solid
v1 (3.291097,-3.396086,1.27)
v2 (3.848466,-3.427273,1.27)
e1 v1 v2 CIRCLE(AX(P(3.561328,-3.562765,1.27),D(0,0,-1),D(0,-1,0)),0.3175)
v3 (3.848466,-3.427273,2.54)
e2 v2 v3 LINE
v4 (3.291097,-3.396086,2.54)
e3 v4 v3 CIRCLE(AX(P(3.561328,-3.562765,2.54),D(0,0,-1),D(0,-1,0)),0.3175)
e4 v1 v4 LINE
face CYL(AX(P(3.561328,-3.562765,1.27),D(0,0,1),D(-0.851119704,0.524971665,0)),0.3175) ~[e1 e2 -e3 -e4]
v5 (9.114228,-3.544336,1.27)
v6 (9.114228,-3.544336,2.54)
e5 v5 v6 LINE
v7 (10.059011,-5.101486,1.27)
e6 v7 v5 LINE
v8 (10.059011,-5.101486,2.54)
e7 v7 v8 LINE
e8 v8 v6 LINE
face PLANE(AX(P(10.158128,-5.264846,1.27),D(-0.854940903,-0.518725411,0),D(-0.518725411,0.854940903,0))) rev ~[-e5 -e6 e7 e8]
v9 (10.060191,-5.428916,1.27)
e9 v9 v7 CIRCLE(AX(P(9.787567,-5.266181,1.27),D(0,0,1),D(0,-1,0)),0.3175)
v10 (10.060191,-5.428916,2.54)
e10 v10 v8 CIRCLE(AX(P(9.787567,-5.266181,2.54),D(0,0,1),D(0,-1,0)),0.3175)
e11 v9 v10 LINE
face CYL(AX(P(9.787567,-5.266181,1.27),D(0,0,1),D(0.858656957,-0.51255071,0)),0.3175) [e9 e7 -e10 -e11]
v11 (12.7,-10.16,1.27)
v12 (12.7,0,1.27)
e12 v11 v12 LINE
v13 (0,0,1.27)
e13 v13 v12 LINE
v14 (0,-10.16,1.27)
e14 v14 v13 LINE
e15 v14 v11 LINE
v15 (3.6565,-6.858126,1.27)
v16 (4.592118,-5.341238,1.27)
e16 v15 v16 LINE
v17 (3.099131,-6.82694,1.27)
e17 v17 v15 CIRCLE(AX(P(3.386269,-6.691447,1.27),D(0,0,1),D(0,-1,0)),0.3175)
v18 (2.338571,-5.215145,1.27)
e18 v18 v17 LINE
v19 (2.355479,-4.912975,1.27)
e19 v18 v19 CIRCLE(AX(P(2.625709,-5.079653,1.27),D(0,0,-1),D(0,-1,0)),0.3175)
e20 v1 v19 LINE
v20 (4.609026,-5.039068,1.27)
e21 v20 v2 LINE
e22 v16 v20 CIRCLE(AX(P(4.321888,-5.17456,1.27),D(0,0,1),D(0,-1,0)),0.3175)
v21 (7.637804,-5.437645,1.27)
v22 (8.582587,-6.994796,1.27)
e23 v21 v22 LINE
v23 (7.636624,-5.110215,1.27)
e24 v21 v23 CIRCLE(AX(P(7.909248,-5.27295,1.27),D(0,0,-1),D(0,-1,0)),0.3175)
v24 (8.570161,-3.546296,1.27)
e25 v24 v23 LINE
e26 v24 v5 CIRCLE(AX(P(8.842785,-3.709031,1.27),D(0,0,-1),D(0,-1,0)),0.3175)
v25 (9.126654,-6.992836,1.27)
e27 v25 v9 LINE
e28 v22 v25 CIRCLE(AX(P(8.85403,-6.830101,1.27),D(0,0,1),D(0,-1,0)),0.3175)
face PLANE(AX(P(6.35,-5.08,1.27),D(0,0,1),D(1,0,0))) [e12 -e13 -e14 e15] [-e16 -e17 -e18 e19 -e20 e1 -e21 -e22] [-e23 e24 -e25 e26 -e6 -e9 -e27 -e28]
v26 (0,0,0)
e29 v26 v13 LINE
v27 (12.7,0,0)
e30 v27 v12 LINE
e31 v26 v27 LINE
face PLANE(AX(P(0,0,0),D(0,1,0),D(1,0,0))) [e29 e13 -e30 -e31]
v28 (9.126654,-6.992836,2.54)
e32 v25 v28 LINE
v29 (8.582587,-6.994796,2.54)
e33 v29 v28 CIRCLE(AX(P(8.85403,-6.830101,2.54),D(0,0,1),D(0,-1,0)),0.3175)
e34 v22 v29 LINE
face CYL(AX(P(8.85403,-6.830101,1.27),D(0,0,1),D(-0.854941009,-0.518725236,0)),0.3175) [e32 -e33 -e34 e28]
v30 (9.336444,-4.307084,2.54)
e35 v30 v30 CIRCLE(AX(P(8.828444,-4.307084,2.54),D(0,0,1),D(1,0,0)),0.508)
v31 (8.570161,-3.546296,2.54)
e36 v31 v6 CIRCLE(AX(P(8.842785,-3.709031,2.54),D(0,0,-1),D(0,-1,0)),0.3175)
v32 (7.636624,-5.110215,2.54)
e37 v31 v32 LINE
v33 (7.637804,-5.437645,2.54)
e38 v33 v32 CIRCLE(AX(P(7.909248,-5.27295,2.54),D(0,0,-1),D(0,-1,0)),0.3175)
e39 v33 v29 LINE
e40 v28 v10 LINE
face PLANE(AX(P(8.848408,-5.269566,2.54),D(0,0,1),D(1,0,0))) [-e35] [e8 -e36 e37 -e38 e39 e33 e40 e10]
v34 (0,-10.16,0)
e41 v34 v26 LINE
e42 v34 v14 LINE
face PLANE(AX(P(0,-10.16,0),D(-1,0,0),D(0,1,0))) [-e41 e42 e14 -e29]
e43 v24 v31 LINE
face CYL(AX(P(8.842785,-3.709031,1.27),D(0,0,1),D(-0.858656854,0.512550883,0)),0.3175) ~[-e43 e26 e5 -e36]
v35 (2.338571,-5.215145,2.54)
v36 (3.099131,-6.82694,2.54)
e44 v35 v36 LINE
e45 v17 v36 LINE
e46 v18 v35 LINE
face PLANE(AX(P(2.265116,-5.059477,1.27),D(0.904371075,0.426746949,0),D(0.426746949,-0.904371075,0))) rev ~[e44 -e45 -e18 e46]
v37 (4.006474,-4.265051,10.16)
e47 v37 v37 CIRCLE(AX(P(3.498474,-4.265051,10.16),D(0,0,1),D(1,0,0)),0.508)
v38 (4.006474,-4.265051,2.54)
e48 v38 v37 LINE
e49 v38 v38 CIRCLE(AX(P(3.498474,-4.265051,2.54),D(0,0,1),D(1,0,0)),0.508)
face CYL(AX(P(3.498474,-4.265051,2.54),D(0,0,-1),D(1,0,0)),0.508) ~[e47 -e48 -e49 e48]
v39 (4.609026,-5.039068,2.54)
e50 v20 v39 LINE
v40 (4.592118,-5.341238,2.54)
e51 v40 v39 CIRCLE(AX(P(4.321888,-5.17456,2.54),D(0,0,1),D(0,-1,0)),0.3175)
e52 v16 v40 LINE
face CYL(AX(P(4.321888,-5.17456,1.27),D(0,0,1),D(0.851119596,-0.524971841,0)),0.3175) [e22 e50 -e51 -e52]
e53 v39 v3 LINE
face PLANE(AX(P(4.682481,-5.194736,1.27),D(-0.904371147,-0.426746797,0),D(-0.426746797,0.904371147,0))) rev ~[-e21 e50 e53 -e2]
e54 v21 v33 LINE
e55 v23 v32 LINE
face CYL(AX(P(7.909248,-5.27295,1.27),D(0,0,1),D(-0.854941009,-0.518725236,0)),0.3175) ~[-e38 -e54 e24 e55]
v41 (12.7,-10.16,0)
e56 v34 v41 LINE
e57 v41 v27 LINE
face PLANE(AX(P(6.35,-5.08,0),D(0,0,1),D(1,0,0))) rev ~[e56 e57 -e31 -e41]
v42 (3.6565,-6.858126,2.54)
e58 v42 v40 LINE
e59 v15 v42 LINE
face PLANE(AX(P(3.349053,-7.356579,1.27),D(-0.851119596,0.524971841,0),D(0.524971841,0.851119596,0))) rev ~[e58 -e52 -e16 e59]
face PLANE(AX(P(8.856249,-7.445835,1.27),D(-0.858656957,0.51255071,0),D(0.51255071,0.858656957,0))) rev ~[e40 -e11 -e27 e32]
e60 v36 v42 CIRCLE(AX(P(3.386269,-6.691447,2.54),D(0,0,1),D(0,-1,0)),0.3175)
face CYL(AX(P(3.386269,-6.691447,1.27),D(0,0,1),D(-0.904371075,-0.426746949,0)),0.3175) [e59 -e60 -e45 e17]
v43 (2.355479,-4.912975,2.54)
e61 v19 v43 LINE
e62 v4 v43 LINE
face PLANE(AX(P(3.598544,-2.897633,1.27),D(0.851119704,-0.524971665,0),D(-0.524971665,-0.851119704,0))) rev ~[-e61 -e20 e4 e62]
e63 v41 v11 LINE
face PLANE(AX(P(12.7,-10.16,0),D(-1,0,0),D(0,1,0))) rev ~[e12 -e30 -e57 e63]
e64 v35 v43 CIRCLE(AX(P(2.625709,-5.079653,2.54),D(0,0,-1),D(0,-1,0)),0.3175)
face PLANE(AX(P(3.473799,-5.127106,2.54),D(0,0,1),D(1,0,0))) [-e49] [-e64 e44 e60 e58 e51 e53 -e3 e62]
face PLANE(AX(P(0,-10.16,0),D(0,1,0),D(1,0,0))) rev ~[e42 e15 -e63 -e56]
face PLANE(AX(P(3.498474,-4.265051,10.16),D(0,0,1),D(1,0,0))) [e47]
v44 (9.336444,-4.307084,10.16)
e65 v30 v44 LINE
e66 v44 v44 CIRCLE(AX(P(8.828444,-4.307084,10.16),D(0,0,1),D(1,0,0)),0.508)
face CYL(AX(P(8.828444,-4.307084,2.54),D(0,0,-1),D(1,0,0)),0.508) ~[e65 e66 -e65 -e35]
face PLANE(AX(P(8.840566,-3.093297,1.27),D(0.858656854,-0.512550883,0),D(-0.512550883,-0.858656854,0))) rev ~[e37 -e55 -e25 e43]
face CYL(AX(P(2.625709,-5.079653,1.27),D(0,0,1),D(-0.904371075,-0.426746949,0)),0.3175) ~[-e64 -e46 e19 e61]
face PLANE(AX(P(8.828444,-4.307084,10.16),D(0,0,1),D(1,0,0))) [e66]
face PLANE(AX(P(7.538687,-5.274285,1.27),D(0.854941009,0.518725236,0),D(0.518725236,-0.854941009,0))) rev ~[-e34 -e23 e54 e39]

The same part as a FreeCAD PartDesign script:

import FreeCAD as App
import Part
import Sketcher
from FreeCAD import Vector
Q = App.Units.Quantity


def edges_at(feature, points):
    """Names of the edges that pass closest to the given points."""
    edges = feature.Shape.Edges
    near = lambda p: min(range(len(edges)), key=lambda i: edges[i].distToShape(Part.Vertex(*p))[0])
    return sorted({f"Edge{near(p) + 1}" for p in points})


def add_polygon(sketch, points):
    """Adds a closed chain of lines whose ends are joined by coincident constraints."""
    first, n = sketch.GeometryCount, len(points)
    for a, b in zip(points, points[1:] + points[:1]):
        sketch.addGeometry(Part.LineSegment(App.Vector(*a, 0), App.Vector(*b, 0)), False)
    for i in range(n):
        sketch.addConstraint(Sketcher.Constraint("Coincident", first + i, 2, first + (i + 1) % n, 1))

doc = App.newDocument("Part")
body = doc.addObject("PartDesign::Body", "Body")

sketch1 = body.newObject("Sketcher::SketchObject", "Sketch")
sketch1.AttachmentSupport = (doc.getObject("XY_Plane"), [""])
sketch1.MapMode = "FlatFace"
add_polygon(sketch1, [(0, 0), (0, -10.16), (12.7, -10.16), (12.7, 0)])
sketch1.addConstraint([
    Sketcher.Constraint("Vertical", 0),
    Sketcher.Constraint("Horizontal", 1),
    Sketcher.Constraint("Vertical", 2),
    Sketcher.Constraint("Horizontal", 3),
    Sketcher.Constraint("Coincident", 3, 2, -1, 1),
    Sketcher.Constraint("DistanceX", 1, 1, 1, 2, Q("0.5 in")),
    Sketcher.Constraint("DistanceY", 0, 2, 0, 1, Q("0.4 in")),
])
pad1 = body.newObject("PartDesign::Pad", "Pad")
pad1.Profile = sketch1
pad1.Length = Q("0.05 in")

sketch2 = body.newObject("Sketcher::SketchObject", "Sketch001")
sketch2.AttachmentSupport = (doc.getObject("XY_Plane"), [""])
sketch2.MapMode = "FlatFace"
sketch2.AttachmentOffset = App.Placement(Vector(0, 0, 0.05 * 25.4), App.Rotation())
add_polygon(sketch2, [(4.682481, -5.194736), (3.598544, -2.897633), (2.265116, -5.059477), (3.349053, -7.356579)])
add_polygon(sketch2, [(7.538687, -5.274285), (8.856249, -7.445835), (10.158128, -5.264846), (8.840566, -3.093297)])
sketch2.addConstraint([
    Sketcher.Constraint("Parallel", 0, 2),
    Sketcher.Constraint("Parallel", 1, 3),
    Sketcher.Constraint("Parallel", 4, 6),
    Sketcher.Constraint("Parallel", 5, 7),
    Sketcher.Constraint("Equal", 0, 1),
    Sketcher.Constraint("Equal", 3, 4),
    Sketcher.Constraint("Equal", 4, 5),
    Sketcher.Constraint("Distance", 0, Q("0.1 in")),
    Sketcher.Constraint("DistanceY", 2, 2, 1, 2, Q("2.297102 mm")),
    Sketcher.Constraint("DistanceY", 4, 2, 3, 2, Q("2.251099 mm")),
    Sketcher.Constraint("DistanceY", 2, 2, -1, 1, Q("7.356579 mm")),
    Sketcher.Constraint("DistanceX", -1, 1, 3, 2, Q("4.682481 mm")),
    Sketcher.Constraint("DistanceX", -1, 1, 4, 2, Q("8.856249 mm")),
    Sketcher.Constraint("DistanceX", 1, 2, 0, 2, Q("1.333428 mm")),
    Sketcher.Constraint("DistanceX", 4, 2, 5, 2, Q("1.301879 mm")),
    Sketcher.Constraint("DistanceX", 6, 2, 5, 2, Q("1.317562 mm")),
])
pad2 = body.newObject("PartDesign::Pad", "Pad001")
pad2.Profile = sketch2
pad2.Length = Q("0.05 in")
doc.recompute()

fillet = body.newObject("PartDesign::Fillet", "Fillet")
fillet.Base = (pad2, edges_at(pad2, [(3.349, -7.357, 1.905), (8.856, -7.446, 1.905)]))
fillet.Radius = Q("0.0125 in")
doc.recompute()

fillet2 = body.newObject("PartDesign::Fillet", "Fillet001")
fillet2.Base = (fillet, edges_at(fillet, [
    (7.539, -5.274, 1.905),
    (2.265, -5.059, 1.905),
    (3.599, -2.898, 1.905),
    (8.841, -3.093, 1.905),
    (10.158, -5.265, 1.905),
    (4.682, -5.195, 1.905),
]))
fillet2.Radius = Q("0.0125 in")

sketch3 = body.newObject("Sketcher::SketchObject", "Sketch002")
sketch3.AttachmentSupport = (doc.getObject("XY_Plane"), [""])
sketch3.MapMode = "FlatFace"
sketch3.AttachmentOffset = App.Placement(Vector(0, 0, 0.1 * 25.4), App.Rotation())
sketch3.addGeometry(Part.Circle(Vector(3.498474, -4.265051, 0), Vector(0, 0, 1), 0.508), False)
sketch3.addConstraint([
    Sketcher.Constraint("Diameter", 0, Q("0.04 in")),
    Sketcher.Constraint("DistanceY", 0, 3, -1, 1, Q("4.265051 mm")),
    Sketcher.Constraint("DistanceX", -1, 1, 0, 3, Q("3.498474 mm")),
])
pad3 = body.newObject("PartDesign::Pad", "Pad002")
pad3.Profile = sketch3
pad3.Length = Q("0.3 in")

sketch4 = body.newObject("Sketcher::SketchObject", "Sketch003")
sketch4.AttachmentSupport = (doc.getObject("XY_Plane"), [""])
sketch4.MapMode = "FlatFace"
sketch4.AttachmentOffset = App.Placement(Vector(0, 0, 0.1 * 25.4), App.Rotation())
sketch4.addGeometry(Part.Circle(Vector(8.828444, -4.307084, 0), Vector(0, 0, 1), 0.508), False)
sketch4.addConstraint([
    Sketcher.Constraint("Diameter", 0, Q("0.04 in")),
    Sketcher.Constraint("DistanceX", -1, 1, 0, 3, Q("8.828444 mm")),
    Sketcher.Constraint("DistanceY", 0, 3, -1, 1, Q("4.307084 mm")),
])
pad4 = body.newObject("PartDesign::Pad", "Pad003")
pad4.Profile = sketch4
pad4.Length = Q("0.3 in")

doc.recompute()
